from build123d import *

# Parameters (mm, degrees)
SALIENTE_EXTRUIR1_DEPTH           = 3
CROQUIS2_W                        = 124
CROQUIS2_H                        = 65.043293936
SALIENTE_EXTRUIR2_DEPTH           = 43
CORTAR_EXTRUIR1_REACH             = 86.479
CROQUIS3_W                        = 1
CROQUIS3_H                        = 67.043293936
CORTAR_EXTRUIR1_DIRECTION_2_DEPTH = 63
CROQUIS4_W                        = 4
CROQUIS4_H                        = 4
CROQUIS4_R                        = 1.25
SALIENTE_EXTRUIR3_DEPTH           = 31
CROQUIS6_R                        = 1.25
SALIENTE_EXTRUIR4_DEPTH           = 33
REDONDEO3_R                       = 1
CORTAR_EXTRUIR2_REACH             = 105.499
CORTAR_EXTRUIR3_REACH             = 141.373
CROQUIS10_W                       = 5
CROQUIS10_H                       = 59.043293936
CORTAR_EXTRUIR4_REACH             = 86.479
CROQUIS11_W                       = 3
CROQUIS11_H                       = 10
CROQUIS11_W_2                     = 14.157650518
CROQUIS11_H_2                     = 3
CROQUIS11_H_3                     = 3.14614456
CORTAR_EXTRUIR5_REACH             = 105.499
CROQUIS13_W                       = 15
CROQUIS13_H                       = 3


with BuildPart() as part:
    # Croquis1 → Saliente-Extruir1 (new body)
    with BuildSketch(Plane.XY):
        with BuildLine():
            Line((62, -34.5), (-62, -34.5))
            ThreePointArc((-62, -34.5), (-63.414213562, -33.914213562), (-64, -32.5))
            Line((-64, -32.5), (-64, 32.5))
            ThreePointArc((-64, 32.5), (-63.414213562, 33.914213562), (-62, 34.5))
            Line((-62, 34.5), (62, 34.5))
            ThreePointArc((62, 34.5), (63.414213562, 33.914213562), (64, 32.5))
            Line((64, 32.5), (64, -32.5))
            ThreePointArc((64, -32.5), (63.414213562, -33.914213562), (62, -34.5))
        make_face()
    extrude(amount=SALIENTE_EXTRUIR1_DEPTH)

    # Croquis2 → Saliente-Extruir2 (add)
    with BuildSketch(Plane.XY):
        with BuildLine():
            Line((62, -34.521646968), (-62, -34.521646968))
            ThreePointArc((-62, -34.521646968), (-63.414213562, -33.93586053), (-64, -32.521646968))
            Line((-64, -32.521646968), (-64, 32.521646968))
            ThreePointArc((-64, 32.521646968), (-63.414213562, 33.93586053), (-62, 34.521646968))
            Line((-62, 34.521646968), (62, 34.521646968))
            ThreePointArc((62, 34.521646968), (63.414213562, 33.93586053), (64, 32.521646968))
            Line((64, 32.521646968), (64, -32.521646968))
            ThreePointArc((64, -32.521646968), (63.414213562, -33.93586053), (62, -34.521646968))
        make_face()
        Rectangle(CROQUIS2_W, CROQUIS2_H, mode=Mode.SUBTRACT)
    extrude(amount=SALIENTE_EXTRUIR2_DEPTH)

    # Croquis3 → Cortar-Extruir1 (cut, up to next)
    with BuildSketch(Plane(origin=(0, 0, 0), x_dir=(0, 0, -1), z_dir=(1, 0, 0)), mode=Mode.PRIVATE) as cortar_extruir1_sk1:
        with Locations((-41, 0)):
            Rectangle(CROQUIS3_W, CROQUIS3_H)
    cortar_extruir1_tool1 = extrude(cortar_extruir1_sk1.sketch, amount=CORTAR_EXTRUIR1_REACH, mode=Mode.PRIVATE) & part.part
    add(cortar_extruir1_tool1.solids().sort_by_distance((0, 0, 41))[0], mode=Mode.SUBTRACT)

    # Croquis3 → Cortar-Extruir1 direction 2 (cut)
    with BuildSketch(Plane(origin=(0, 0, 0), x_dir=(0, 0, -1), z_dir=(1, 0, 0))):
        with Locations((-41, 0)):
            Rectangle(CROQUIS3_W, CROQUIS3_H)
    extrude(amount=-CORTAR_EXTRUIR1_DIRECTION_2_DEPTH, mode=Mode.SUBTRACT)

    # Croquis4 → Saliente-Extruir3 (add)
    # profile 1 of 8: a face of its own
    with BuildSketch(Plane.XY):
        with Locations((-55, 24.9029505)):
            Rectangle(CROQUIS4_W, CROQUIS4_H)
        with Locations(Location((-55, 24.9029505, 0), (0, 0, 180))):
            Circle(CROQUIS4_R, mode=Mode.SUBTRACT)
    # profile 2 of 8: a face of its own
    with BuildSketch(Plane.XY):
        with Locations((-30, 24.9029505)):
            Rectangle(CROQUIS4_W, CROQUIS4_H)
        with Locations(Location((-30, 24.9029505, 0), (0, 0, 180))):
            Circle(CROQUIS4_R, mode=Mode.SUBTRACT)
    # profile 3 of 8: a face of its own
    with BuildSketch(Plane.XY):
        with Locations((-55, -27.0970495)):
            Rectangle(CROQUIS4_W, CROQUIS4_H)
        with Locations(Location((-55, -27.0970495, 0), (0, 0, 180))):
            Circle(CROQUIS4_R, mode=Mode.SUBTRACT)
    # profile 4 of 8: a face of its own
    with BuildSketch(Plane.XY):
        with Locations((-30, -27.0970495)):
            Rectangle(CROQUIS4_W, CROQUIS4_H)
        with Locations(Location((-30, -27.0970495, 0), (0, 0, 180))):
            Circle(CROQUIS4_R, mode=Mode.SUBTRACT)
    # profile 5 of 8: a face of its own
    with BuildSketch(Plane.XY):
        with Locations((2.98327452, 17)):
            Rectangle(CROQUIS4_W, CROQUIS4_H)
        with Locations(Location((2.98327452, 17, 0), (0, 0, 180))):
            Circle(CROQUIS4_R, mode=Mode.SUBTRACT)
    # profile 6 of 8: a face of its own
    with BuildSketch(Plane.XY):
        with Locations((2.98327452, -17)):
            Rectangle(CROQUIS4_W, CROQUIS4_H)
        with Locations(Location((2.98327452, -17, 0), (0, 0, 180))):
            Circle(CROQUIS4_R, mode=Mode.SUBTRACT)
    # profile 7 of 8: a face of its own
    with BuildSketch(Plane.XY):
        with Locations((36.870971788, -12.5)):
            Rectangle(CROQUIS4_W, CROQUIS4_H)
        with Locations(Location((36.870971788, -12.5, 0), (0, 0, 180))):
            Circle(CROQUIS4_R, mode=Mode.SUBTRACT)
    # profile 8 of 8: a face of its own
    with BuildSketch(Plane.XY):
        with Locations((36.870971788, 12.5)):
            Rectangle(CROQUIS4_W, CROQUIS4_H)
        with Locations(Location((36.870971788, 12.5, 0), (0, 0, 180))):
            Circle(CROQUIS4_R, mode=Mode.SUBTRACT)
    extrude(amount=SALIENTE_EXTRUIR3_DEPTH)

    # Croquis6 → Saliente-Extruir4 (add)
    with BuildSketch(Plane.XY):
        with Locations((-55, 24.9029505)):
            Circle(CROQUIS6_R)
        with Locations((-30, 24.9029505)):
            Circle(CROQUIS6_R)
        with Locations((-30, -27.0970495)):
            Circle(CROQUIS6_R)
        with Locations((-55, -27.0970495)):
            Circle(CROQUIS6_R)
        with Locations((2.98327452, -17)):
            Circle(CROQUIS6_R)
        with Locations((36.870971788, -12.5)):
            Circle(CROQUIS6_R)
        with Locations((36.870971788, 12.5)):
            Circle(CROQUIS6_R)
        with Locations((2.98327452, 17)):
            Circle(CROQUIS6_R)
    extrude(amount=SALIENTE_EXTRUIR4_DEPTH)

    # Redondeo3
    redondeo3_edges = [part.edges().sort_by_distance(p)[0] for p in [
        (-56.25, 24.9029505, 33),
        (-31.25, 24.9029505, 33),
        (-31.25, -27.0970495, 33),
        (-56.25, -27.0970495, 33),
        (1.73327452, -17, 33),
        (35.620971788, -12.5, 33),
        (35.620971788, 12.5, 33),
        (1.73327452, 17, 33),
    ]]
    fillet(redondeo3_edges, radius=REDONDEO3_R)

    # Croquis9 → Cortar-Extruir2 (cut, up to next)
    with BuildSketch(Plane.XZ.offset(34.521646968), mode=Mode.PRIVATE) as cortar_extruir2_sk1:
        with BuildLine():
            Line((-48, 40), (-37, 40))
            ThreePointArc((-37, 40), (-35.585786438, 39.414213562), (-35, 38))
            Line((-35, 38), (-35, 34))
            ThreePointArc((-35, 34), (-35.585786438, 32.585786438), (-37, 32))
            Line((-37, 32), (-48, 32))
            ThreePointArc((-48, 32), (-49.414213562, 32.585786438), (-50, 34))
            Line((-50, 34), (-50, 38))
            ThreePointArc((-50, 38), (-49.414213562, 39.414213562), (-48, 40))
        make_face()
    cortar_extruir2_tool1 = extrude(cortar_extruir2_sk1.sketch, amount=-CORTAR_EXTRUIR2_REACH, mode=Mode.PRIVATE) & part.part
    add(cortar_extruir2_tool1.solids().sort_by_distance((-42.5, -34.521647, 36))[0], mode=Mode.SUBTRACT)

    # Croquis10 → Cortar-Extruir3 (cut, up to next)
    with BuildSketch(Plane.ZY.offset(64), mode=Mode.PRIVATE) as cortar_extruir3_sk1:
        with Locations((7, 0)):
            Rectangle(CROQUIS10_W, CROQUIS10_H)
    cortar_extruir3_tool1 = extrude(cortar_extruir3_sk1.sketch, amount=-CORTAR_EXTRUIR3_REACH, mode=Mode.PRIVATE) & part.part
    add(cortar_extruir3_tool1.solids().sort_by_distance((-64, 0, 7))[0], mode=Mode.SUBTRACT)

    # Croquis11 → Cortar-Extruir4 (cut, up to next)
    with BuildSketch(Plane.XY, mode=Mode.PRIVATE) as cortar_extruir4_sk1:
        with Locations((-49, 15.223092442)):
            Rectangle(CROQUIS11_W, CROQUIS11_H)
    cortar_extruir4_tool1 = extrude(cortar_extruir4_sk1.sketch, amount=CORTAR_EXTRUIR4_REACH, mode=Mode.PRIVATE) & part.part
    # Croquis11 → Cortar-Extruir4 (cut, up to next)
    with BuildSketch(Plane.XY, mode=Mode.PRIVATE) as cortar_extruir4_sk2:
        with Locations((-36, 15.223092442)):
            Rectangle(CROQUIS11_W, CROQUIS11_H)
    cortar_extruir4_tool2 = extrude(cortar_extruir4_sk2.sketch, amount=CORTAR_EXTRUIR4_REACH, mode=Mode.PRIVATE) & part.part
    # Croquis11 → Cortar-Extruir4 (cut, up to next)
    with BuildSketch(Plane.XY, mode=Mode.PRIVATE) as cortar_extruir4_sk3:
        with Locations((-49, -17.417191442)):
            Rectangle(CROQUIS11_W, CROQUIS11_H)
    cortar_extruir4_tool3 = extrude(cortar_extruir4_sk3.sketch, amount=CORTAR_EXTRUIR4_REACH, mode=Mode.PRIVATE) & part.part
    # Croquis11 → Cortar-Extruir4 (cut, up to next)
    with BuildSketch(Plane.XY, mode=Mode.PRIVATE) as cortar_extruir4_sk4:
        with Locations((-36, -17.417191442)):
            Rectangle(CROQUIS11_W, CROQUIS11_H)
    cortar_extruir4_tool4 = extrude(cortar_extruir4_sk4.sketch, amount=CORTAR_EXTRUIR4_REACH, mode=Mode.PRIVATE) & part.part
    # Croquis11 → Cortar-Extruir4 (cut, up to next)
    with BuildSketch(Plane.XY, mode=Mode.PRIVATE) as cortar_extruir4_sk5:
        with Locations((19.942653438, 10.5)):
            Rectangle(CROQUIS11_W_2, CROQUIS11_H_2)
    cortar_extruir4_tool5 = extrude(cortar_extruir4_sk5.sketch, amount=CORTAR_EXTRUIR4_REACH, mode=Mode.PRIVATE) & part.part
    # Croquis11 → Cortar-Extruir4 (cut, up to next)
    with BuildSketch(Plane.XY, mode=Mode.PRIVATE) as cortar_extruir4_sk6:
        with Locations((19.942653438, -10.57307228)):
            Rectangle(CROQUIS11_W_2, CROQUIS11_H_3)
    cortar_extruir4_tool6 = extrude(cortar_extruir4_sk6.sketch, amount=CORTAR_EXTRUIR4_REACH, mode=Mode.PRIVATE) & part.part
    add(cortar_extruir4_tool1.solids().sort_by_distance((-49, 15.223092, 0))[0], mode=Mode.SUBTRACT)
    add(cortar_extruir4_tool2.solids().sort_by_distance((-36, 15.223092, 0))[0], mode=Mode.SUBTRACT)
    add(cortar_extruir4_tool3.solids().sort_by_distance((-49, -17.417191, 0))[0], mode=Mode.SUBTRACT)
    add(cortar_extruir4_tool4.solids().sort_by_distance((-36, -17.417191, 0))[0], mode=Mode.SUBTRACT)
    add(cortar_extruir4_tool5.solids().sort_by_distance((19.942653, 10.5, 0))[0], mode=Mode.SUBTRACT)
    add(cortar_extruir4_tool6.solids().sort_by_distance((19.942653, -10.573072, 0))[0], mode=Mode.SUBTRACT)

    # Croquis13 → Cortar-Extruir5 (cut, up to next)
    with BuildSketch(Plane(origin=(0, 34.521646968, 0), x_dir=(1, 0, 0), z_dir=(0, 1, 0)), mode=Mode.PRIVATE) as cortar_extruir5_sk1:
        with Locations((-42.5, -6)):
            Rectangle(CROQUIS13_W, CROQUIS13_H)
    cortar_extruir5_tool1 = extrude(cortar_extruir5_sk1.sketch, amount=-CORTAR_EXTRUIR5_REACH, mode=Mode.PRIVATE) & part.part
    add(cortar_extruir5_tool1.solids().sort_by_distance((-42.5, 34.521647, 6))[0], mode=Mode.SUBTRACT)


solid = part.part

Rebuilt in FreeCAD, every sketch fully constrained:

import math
import FreeCAD as App
import Part
import Sketcher


def edges_at(feature, points):
    """Names of the edges that pass closest to the given points."""
    edges = feature.Shape.Edges
    near = lambda p: min(range(len(edges)), key=lambda i: edges[i].distToShape(Part.Vertex(*p))[0])
    return sorted({f"Edge{near(p) + 1}" for p in points})

doc = App.newDocument("Part")
body = doc.addObject("PartDesign::Body", "Body")

sketch1 = doc.addObject("Sketcher::SketchObject", "Sketch")
body.addObject(sketch1)
sketch1.AttachmentSupport = (doc.XY_Plane, [""])
sketch1.MapMode = "FlatFace"
sketch1.addGeometry(Part.LineSegment(App.Vector(-62, -34.5, 0), App.Vector(62, -34.5, 0)), False)
sketch1.addGeometry(Part.ArcOfCircle(Part.Circle(App.Vector(62, -32.5, 0), App.Vector(0, 0, 1), 2), math.radians(-90), math.radians(0)), False)
sketch1.addGeometry(Part.LineSegment(App.Vector(64, -32.5, 0), App.Vector(64, 32.5, 0)), False)
sketch1.addGeometry(Part.ArcOfCircle(Part.Circle(App.Vector(62, 32.5, 0), App.Vector(0, 0, 1), 2), math.radians(0), math.radians(90)), False)
sketch1.addGeometry(Part.LineSegment(App.Vector(62, 34.5, 0), App.Vector(-62, 34.5, 0)), False)
sketch1.addGeometry(Part.ArcOfCircle(Part.Circle(App.Vector(-62, 32.5, 0), App.Vector(0, 0, 1), 2), math.radians(90), math.radians(180)), False)
sketch1.addGeometry(Part.LineSegment(App.Vector(-64, 32.5, 0), App.Vector(-64, -32.5, 0)), False)
sketch1.addGeometry(Part.ArcOfCircle(Part.Circle(App.Vector(-62, -32.5, 0), App.Vector(0, 0, 1), 2), math.radians(-180), math.radians(-90)), False)
sketch1.addConstraint(Sketcher.Constraint("Tangent", 0, 2, 1, 1))
sketch1.addConstraint(Sketcher.Constraint("Tangent", 1, 2, 2, 1))
sketch1.addConstraint(Sketcher.Constraint("Tangent", 2, 2, 3, 1))
sketch1.addConstraint(Sketcher.Constraint("Tangent", 3, 2, 4, 1))
sketch1.addConstraint(Sketcher.Constraint("Tangent", 4, 2, 5, 1))
sketch1.addConstraint(Sketcher.Constraint("Tangent", 5, 2, 6, 1))
sketch1.addConstraint(Sketcher.Constraint("Tangent", 6, 2, 7, 1))
sketch1.addConstraint(Sketcher.Constraint("Tangent", 7, 2, 0, 1))
sketch1.addConstraint(Sketcher.Constraint("Horizontal", 0))
sketch1.addConstraint(Sketcher.Constraint("Vertical", 2))
sketch1.addConstraint(Sketcher.Constraint("Horizontal", 4))
sketch1.addConstraint(Sketcher.Constraint("Vertical", 6))
sketch1.addConstraint(Sketcher.Constraint("Equal", 1, 3))
sketch1.addConstraint(Sketcher.Constraint("Equal", 3, 5))
sketch1.addConstraint(Sketcher.Constraint("Equal", 5, 7))
sketch1.addConstraint(Sketcher.Constraint("Symmetric", 1, 3, 5, 3, -1, 1))
sketch1.addConstraint(Sketcher.Constraint("Radius", 1, 2.0))
sketch1.addConstraint(Sketcher.Constraint("DistanceX", 0, 1, 0, 2, 124.0))
sketch1.addConstraint(Sketcher.Constraint("DistanceY", 2, 1, 2, 2, 65.0))
pad1 = doc.addObject("PartDesign::Pad", "Pad")
body.addObject(pad1)
pad1.Profile = sketch1
pad1.Length = 3

sketch2 = doc.addObject("Sketcher::SketchObject", "Sketch001")
body.addObject(sketch2)
sketch2.AttachmentSupport = (doc.XY_Plane, [""])
sketch2.MapMode = "FlatFace"
sketch2.addGeometry(Part.LineSegment(App.Vector(-62, -34.521647, 0), App.Vector(62, -34.521647, 0)), False)
sketch2.addGeometry(Part.ArcOfCircle(Part.Circle(App.Vector(62, -32.521647, 0), App.Vector(0, 0, 1), 2), math.radians(-90), math.radians(0)), False)
sketch2.addGeometry(Part.LineSegment(App.Vector(64, -32.521647, 0), App.Vector(64, 32.521647, 0)), False)
sketch2.addGeometry(Part.ArcOfCircle(Part.Circle(App.Vector(62, 32.521647, 0), App.Vector(0, 0, 1), 2), math.radians(0), math.radians(90)), False)
sketch2.addGeometry(Part.LineSegment(App.Vector(62, 34.521647, 0), App.Vector(-62, 34.521647, 0)), False)
sketch2.addGeometry(Part.ArcOfCircle(Part.Circle(App.Vector(-62, 32.521647, 0), App.Vector(0, 0, 1), 2), math.radians(90), math.radians(180)), False)
sketch2.addGeometry(Part.LineSegment(App.Vector(-64, 32.521647, 0), App.Vector(-64, -32.521647, 0)), False)
sketch2.addGeometry(Part.ArcOfCircle(Part.Circle(App.Vector(-62, -32.521647, 0), App.Vector(0, 0, 1), 2), math.radians(-180), math.radians(-90)), False)
sketch2.addGeometry(Part.LineSegment(App.Vector(-62, -32.521647, 0), App.Vector(-62, 32.521647, 0)), False)
sketch2.addGeometry(Part.LineSegment(App.Vector(-62, 32.521647, 0), App.Vector(62, 32.521647, 0)), False)
sketch2.addGeometry(Part.LineSegment(App.Vector(62, 32.521647, 0), App.Vector(62, -32.521647, 0)), False)
sketch2.addGeometry(Part.LineSegment(App.Vector(62, -32.521647, 0), App.Vector(-62, -32.521647, 0)), False)
sketch2.addConstraint(Sketcher.Constraint("Tangent", 0, 2, 1, 1))
sketch2.addConstraint(Sketcher.Constraint("Tangent", 1, 2, 2, 1))
sketch2.addConstraint(Sketcher.Constraint("Tangent", 2, 2, 3, 1))
sketch2.addConstraint(Sketcher.Constraint("Tangent", 3, 2, 4, 1))
sketch2.addConstraint(Sketcher.Constraint("Tangent", 4, 2, 5, 1))
sketch2.addConstraint(Sketcher.Constraint("Tangent", 5, 2, 6, 1))
sketch2.addConstraint(Sketcher.Constraint("Tangent", 6, 2, 7, 1))
sketch2.addConstraint(Sketcher.Constraint("Tangent", 7, 2, 0, 1))
sketch2.addConstraint(Sketcher.Constraint("Coincident", 8, 2, 9, 1))
sketch2.addConstraint(Sketcher.Constraint("Coincident", 9, 2, 10, 1))
sketch2.addConstraint(Sketcher.Constraint("Coincident", 10, 2, 11, 1))
sketch2.addConstraint(Sketcher.Constraint("Coincident", 11, 2, 8, 1))
sketch2.addConstraint(Sketcher.Constraint("Horizontal", 0))
sketch2.addConstraint(Sketcher.Constraint("Vertical", 2))
sketch2.addConstraint(Sketcher.Constraint("Horizontal", 4))
sketch2.addConstraint(Sketcher.Constraint("Vertical", 6))
sketch2.addConstraint(Sketcher.Constraint("Vertical", 8))
sketch2.addConstraint(Sketcher.Constraint("Horizontal", 9))
sketch2.addConstraint(Sketcher.Constraint("Vertical", 10))
sketch2.addConstraint(Sketcher.Constraint("Horizontal", 11))
sketch2.addConstraint(Sketcher.Constraint("Coincident", 8, 2, 5, 3))
sketch2.addConstraint(Sketcher.Constraint("Coincident", 9, 2, 3, 3))
sketch2.addConstraint(Sketcher.Constraint("Coincident", 10, 2, 1, 3))
sketch2.addConstraint(Sketcher.Constraint("Equal", 5, 7))
sketch2.addConstraint(Sketcher.Constraint("Symmetric", 1, 3, 5, 3, -1, 1))
sketch2.addConstraint(Sketcher.Constraint("Radius", 1, 2.0))
sketch2.addConstraint(Sketcher.Constraint("DistanceX", 0, 1, 0, 2, 124.0))
sketch2.addConstraint(Sketcher.Constraint("DistanceY", 2, 1, 2, 2, 65.043294))
pad2 = doc.addObject("PartDesign::Pad", "Pad001")
body.addObject(pad2)
pad2.Profile = sketch2
pad2.Length = 43

sketch3 = doc.addObject("Sketcher::SketchObject", "Sketch002")
body.addObject(sketch3)
sketch3.AttachmentSupport = (doc.YZ_Plane, [""])
sketch3.MapMode = "FlatFace"
sketch3.addGeometry(Part.LineSegment(App.Vector(33.521647, 41.5, 0), App.Vector(-33.521647, 41.5, 0)), False)
sketch3.addGeometry(Part.LineSegment(App.Vector(-33.521647, 41.5, 0), App.Vector(-33.521647, 40.5, 0)), False)
sketch3.addGeometry(Part.LineSegment(App.Vector(-33.521647, 40.5, 0), App.Vector(33.521647, 40.5, 0)), False)
sketch3.addGeometry(Part.LineSegment(App.Vector(33.521647, 40.5, 0), App.Vector(33.521647, 41.5, 0)), False)
sketch3.addConstraint(Sketcher.Constraint("Coincident", 0, 2, 1, 1))
sketch3.addConstraint(Sketcher.Constraint("Coincident", 1, 2, 2, 1))
sketch3.addConstraint(Sketcher.Constraint("Coincident", 2, 2, 3, 1))
sketch3.addConstraint(Sketcher.Constraint("Coincident", 3, 2, 0, 1))
sketch3.addConstraint(Sketcher.Constraint("Horizontal", 0))
sketch3.addConstraint(Sketcher.Constraint("Vertical", 1))
sketch3.addConstraint(Sketcher.Constraint("Horizontal", 2))
sketch3.addConstraint(Sketcher.Constraint("Vertical", 3))
sketch3.addConstraint(Sketcher.Constraint("DistanceY", 1, 2, 1, 1, 1.0))
sketch3.addConstraint(Sketcher.Constraint("DistanceY", -1, 1, 0, 2, 41.5))
sketch3.addConstraint(Sketcher.Constraint("DistanceX", 0, 2, 0, 1, 67.043294))
sketch3.addConstraint(Sketcher.Constraint("DistanceX", 0, 2, -1, 1, 33.521647))
pocket1 = doc.addObject("PartDesign::Pocket", "Pocket")
body.addObject(pocket1)
pocket1.Profile = sketch3
pocket1.Length = 64
pocket1.Reversed = True

sketch4 = doc.addObject("Sketcher::SketchObject", "Sketch003")
body.addObject(sketch4)
sketch4.AttachmentSupport = (doc.YZ_Plane, [""])
sketch4.MapMode = "FlatFace"
sketch4.addGeometry(Part.LineSegment(App.Vector(33.521647, 41.5, 0), App.Vector(-33.521647, 41.5, 0)), False)
sketch4.addGeometry(Part.LineSegment(App.Vector(-33.521647, 41.5, 0), App.Vector(-33.521647, 40.5, 0)), False)
sketch4.addGeometry(Part.LineSegment(App.Vector(-33.521647, 40.5, 0), App.Vector(33.521647, 40.5, 0)), False)
sketch4.addGeometry(Part.LineSegment(App.Vector(33.521647, 40.5, 0), App.Vector(33.521647, 41.5, 0)), False)
sketch4.addConstraint(Sketcher.Constraint("Coincident", 0, 2, 1, 1))
sketch4.addConstraint(Sketcher.Constraint("Coincident", 1, 2, 2, 1))
sketch4.addConstraint(Sketcher.Constraint("Coincident", 2, 2, 3, 1))
sketch4.addConstraint(Sketcher.Constraint("Coincident", 3, 2, 0, 1))
sketch4.addConstraint(Sketcher.Constraint("Horizontal", 0))
sketch4.addConstraint(Sketcher.Constraint("Vertical", 1))
sketch4.addConstraint(Sketcher.Constraint("Horizontal", 2))
sketch4.addConstraint(Sketcher.Constraint("Vertical", 3))
sketch4.addConstraint(Sketcher.Constraint("DistanceY", 1, 2, 1, 1, 1.0))
sketch4.addConstraint(Sketcher.Constraint("DistanceY", -1, 1, 0, 2, 41.5))
sketch4.addConstraint(Sketcher.Constraint("DistanceX", 0, 2, 0, 1, 67.043294))
sketch4.addConstraint(Sketcher.Constraint("DistanceX", 0, 2, -1, 1, 33.521647))
pocket2 = doc.addObject("PartDesign::Pocket", "Pocket001")
body.addObject(pocket2)
pocket2.Profile = sketch4
pocket2.Length = 63

sketch5 = doc.addObject("Sketcher::SketchObject", "Sketch004")
body.addObject(sketch5)
sketch5.AttachmentSupport = (doc.XY_Plane, [""])
sketch5.MapMode = "FlatFace"
sketch5.addGeometry(Part.LineSegment(App.Vector(-57, 26.90295, 0), App.Vector(-57, 22.90295, 0)), False)
sketch5.addGeometry(Part.LineSegment(App.Vector(-57, 22.90295, 0), App.Vector(-53, 22.90295, 0)), False)
sketch5.addGeometry(Part.LineSegment(App.Vector(-53, 22.90295, 0), App.Vector(-53, 26.90295, 0)), False)
sketch5.addGeometry(Part.LineSegment(App.Vector(-53, 26.90295, 0), App.Vector(-57, 26.90295, 0)), False)
sketch5.addGeometry(Part.Circle(App.Vector(-55, 24.90295, 0), App.Vector(0, 0, 1), 1.25), False)
sketch5.addGeometry(Part.LineSegment(App.Vector(-32, 26.90295, 0), App.Vector(-32, 22.90295, 0)), False)
sketch5.addGeometry(Part.LineSegment(App.Vector(-32, 22.90295, 0), App.Vector(-28, 22.90295, 0)), False)
sketch5.addGeometry(Part.LineSegment(App.Vector(-28, 22.90295, 0), App.Vector(-28, 26.90295, 0)), False)
sketch5.addGeometry(Part.LineSegment(App.Vector(-28, 26.90295, 0), App.Vector(-32, 26.90295, 0)), False)
sketch5.addGeometry(Part.Circle(App.Vector(-30, 24.90295, 0), App.Vector(0, 0, 1), 1.25), False)
sketch5.addGeometry(Part.LineSegment(App.Vector(-57, -25.09705, 0), App.Vector(-57, -29.09705, 0)), False)
sketch5.addGeometry(Part.LineSegment(App.Vector(-57, -29.09705, 0), App.Vector(-53, -29.09705, 0)), False)
sketch5.addGeometry(Part.LineSegment(App.Vector(-53, -29.09705, 0), App.Vector(-53, -25.09705, 0)), False)
sketch5.addGeometry(Part.LineSegment(App.Vector(-53, -25.09705, 0), App.Vector(-57, -25.09705, 0)), False)
sketch5.addGeometry(Part.Circle(App.Vector(-55, -27.09705, 0), App.Vector(0, 0, 1), 1.25), False)
sketch5.addGeometry(Part.LineSegment(App.Vector(-32, -25.09705, 0), App.Vector(-32, -29.09705, 0)), False)
sketch5.addGeometry(Part.LineSegment(App.Vector(-32, -29.09705, 0), App.Vector(-28, -29.09705, 0)), False)
sketch5.addGeometry(Part.LineSegment(App.Vector(-28, -29.09705, 0), App.Vector(-28, -25.09705, 0)), False)
sketch5.addGeometry(Part.LineSegment(App.Vector(-28, -25.09705, 0), App.Vector(-32, -25.09705, 0)), False)
sketch5.addGeometry(Part.Circle(App.Vector(-30, -27.09705, 0), App.Vector(0, 0, 1), 1.25), False)
sketch5.addGeometry(Part.LineSegment(App.Vector(0.983275, 19, 0), App.Vector(0.983275, 15, 0)), False)
sketch5.addGeometry(Part.LineSegment(App.Vector(0.983275, 15, 0), App.Vector(4.983275, 15, 0)), False)
sketch5.addGeometry(Part.LineSegment(App.Vector(4.983275, 15, 0), App.Vector(4.983275, 19, 0)), False)
sketch5.addGeometry(Part.LineSegment(App.Vector(4.983275, 19, 0), App.Vector(0.983275, 19, 0)), False)
sketch5.addGeometry(Part.Circle(App.Vector(2.983275, 17, 0), App.Vector(0, 0, 1), 1.25), False)
sketch5.addGeometry(Part.LineSegment(App.Vector(0.983275, -15, 0), App.Vector(0.983275, -19, 0)), False)
sketch5.addGeometry(Part.LineSegment(App.Vector(0.983275, -19, 0), App.Vector(4.983275, -19, 0)), False)
sketch5.addGeometry(Part.LineSegment(App.Vector(4.983275, -19, 0), App.Vector(4.983275, -15, 0)), False)
sketch5.addGeometry(Part.LineSegment(App.Vector(4.983275, -15, 0), App.Vector(0.983275, -15, 0)), False)
sketch5.addGeometry(Part.Circle(App.Vector(2.983275, -17, 0), App.Vector(0, 0, 1), 1.25), False)
sketch5.addGeometry(Part.LineSegment(App.Vector(34.870972, -10.5, 0), App.Vector(34.870972, -14.5, 0)), False)
sketch5.addGeometry(Part.LineSegment(App.Vector(34.870972, -14.5, 0), App.Vector(38.870972, -14.5, 0)), False)
sketch5.addGeometry(Part.LineSegment(App.Vector(38.870972, -14.5, 0), App.Vector(38.870972, -10.5, 0)), False)
sketch5.addGeometry(Part.LineSegment(App.Vector(38.870972, -10.5, 0), App.Vector(34.870972, -10.5, 0)), False)
sketch5.addGeometry(Part.Circle(App.Vector(36.870972, -12.5, 0), App.Vector(0, 0, 1), 1.25), False)
sketch5.addGeometry(Part.LineSegment(App.Vector(34.870972, 14.5, 0), App.Vector(34.870972, 10.5, 0)), False)
sketch5.addGeometry(Part.LineSegment(App.Vector(34.870972, 10.5, 0), App.Vector(38.870972, 10.5, 0)), False)
sketch5.addGeometry(Part.LineSegment(App.Vector(38.870972, 10.5, 0), App.Vector(38.870972, 14.5, 0)), False)
sketch5.addGeometry(Part.LineSegment(App.Vector(38.870972, 14.5, 0), App.Vector(34.870972, 14.5, 0)), False)
sketch5.addGeometry(Part.Circle(App.Vector(36.870972, 12.5, 0), App.Vector(0, 0, 1), 1.25), False)
sketch5.addConstraint(Sketcher.Constraint("Coincident", 0, 2, 1, 1))
sketch5.addConstraint(Sketcher.Constraint("Coincident", 1, 2, 2, 1))
sketch5.addConstraint(Sketcher.Constraint("Coincident", 2, 2, 3, 1))
sketch5.addConstraint(Sketcher.Constraint("Coincident", 3, 2, 0, 1))
sketch5.addConstraint(Sketcher.Constraint("Coincident", 5, 2, 6, 1))
sketch5.addConstraint(Sketcher.Constraint("Coincident", 6, 2, 7, 1))
sketch5.addConstraint(Sketcher.Constraint("Coincident", 7, 2, 8, 1))
sketch5.addConstraint(Sketcher.Constraint("Coincident", 8, 2, 5, 1))
sketch5.addConstraint(Sketcher.Constraint("Coincident", 10, 2, 11, 1))
sketch5.addConstraint(Sketcher.Constraint("Coincident", 11, 2, 12, 1))
sketch5.addConstraint(Sketcher.Constraint("Coincident", 12, 2, 13, 1))
sketch5.addConstraint(Sketcher.Constraint("Coincident", 13, 2, 10, 1))
sketch5.addConstraint(Sketcher.Constraint("Coincident", 15, 2, 16, 1))
sketch5.addConstraint(Sketcher.Constraint("Coincident", 16, 2, 17, 1))
sketch5.addConstraint(Sketcher.Constraint("Coincident", 17, 2, 18, 1))
sketch5.addConstraint(Sketcher.Constraint("Coincident", 18, 2, 15, 1))
sketch5.addConstraint(Sketcher.Constraint("Coincident", 20, 2, 21, 1))
sketch5.addConstraint(Sketcher.Constraint("Coincident", 21, 2, 22, 1))
sketch5.addConstraint(Sketcher.Constraint("Coincident", 22, 2, 23, 1))
sketch5.addConstraint(Sketcher.Constraint("Coincident", 23, 2, 20, 1))
sketch5.addConstraint(Sketcher.Constraint("Coincident", 25, 2, 26, 1))
sketch5.addConstraint(Sketcher.Constraint("Coincident", 26, 2, 27, 1))
sketch5.addConstraint(Sketcher.Constraint("Coincident", 27, 2, 28, 1))
sketch5.addConstraint(Sketcher.Constraint("Coincident", 28, 2, 25, 1))
sketch5.addConstraint(Sketcher.Constraint("Coincident", 30, 2, 31, 1))
sketch5.addConstraint(Sketcher.Constraint("Coincident", 31, 2, 32, 1))
sketch5.addConstraint(Sketcher.Constraint("Coincident", 32, 2, 33, 1))
sketch5.addConstraint(Sketcher.Constraint("Coincident", 33, 2, 30, 1))
sketch5.addConstraint(Sketcher.Constraint("Coincident", 35, 2, 36, 1))
sketch5.addConstraint(Sketcher.Constraint("Coincident", 36, 2, 37, 1))
sketch5.addConstraint(Sketcher.Constraint("Coincident", 37, 2, 38, 1))
sketch5.addConstraint(Sketcher.Constraint("Coincident", 38, 2, 35, 1))
sketch5.addConstraint(Sketcher.Constraint("Vertical", 0))
sketch5.addConstraint(Sketcher.Constraint("Horizontal", 1))
sketch5.addConstraint(Sketcher.Constraint("Vertical", 2))
sketch5.addConstraint(Sketcher.Constraint("Horizontal", 3))
sketch5.addConstraint(Sketcher.Constraint("Vertical", 5))
sketch5.addConstraint(Sketcher.Constraint("Horizontal", 6))
sketch5.addConstraint(Sketcher.Constraint("Vertical", 7))
sketch5.addConstraint(Sketcher.Constraint("Horizontal", 8))
sketch5.addConstraint(Sketcher.Constraint("Vertical", 10))
sketch5.addConstraint(Sketcher.Constraint("Horizontal", 11))
sketch5.addConstraint(Sketcher.Constraint("Vertical", 12))
sketch5.addConstraint(Sketcher.Constraint("Horizontal", 13))
sketch5.addConstraint(Sketcher.Constraint("Vertical", 15))
sketch5.addConstraint(Sketcher.Constraint("Horizontal", 16))
sketch5.addConstraint(Sketcher.Constraint("Vertical", 17))
sketch5.addConstraint(Sketcher.Constraint("Horizontal", 18))
sketch5.addConstraint(Sketcher.Constraint("Vertical", 20))
sketch5.addConstraint(Sketcher.Constraint("Horizontal", 21))
sketch5.addConstraint(Sketcher.Constraint("Vertical", 22))
sketch5.addConstraint(Sketcher.Constraint("Horizontal", 23))
sketch5.addConstraint(Sketcher.Constraint("Vertical", 25))
sketch5.addConstraint(Sketcher.Constraint("Horizontal", 26))
sketch5.addConstraint(Sketcher.Constraint("Vertical", 27))
sketch5.addConstraint(Sketcher.Constraint("Horizontal", 28))
sketch5.addConstraint(Sketcher.Constraint("Vertical", 30))
sketch5.addConstraint(Sketcher.Constraint("Horizontal", 31))
sketch5.addConstraint(Sketcher.Constraint("Vertical", 32))
sketch5.addConstraint(Sketcher.Constraint("Horizontal", 33))
sketch5.addConstraint(Sketcher.Constraint("Vertical", 35))
sketch5.addConstraint(Sketcher.Constraint("Horizontal", 36))
sketch5.addConstraint(Sketcher.Constraint("Vertical", 37))
sketch5.addConstraint(Sketcher.Constraint("Horizontal", 38))
sketch5.addConstraint(Sketcher.Constraint("Equal", 4, 9))
sketch5.addConstraint(Sketcher.Constraint("Equal", 9, 14))
sketch5.addConstraint(Sketcher.Constraint("Equal", 14, 19))
sketch5.addConstraint(Sketcher.Constraint("Equal", 19, 24))
sketch5.addConstraint(Sketcher.Constraint("Equal", 24, 29))
sketch5.addConstraint(Sketcher.Constraint("Equal", 29, 34))
sketch5.addConstraint(Sketcher.Constraint("Equal", 34, 39))
sketch5.addConstraint(Sketcher.Constraint("Symmetric", 24, 3, 29, 3, -1))
sketch5.addConstraint(Sketcher.Constraint("Symmetric", 34, 3, 39, 3, -1))
sketch5.addConstraint(Sketcher.Constraint("Symmetric", 23, 2, 25, 2, -1))
sketch5.addConstraint(Sketcher.Constraint("Symmetric", 21, 2, 27, 2, -1))
sketch5.addConstraint(Sketcher.Constraint("Symmetric", 33, 2, 35, 2, -1))
sketch5.addConstraint(Sketcher.Constraint("Symmetric", 31, 2, 37, 2, -1))
sketch5.addConstraint(Sketcher.Constraint("Horizontal", 4, 3, 9, 3))
sketch5.addConstraint(Sketcher.Constraint("Horizontal", 14, 3, 19, 3))
sketch5.addConstraint(Sketcher.Constraint("Horizontal", 1, 2, 5, 2))
sketch5.addConstraint(Sketcher.Constraint("Horizontal", 3, 2, 7, 2))
sketch5.addConstraint(Sketcher.Constraint("Horizontal", 11, 2, 15, 2))
sketch5.addConstraint(Sketcher.Constraint("Horizontal", 13, 2, 17, 2))
sketch5.addConstraint(Sketcher.Constraint("Vertical", 4, 3, 14, 3))
sketch5.addConstraint(Sketcher.Constraint("Vertical", 9, 3, 19, 3))
sketch5.addConstraint(Sketcher.Constraint("Vertical", 3, 2, 10, 2))
sketch5.addConstraint(Sketcher.Constraint("Vertical", 2, 2, 11, 2))
sketch5.addConstraint(Sketcher.Constraint("Vertical", 8, 2, 15, 2))
sketch5.addConstraint(Sketcher.Constraint("Vertical", 7, 2, 16, 2))
sketch5.addConstraint(Sketcher.Constraint("Equal", 3, 6))
sketch5.addConstraint(Sketcher.Constraint("Equal", 18, 21))
sketch5.addConstraint(Sketcher.Constraint("Equal", 28, 31))
sketch5.addConstraint(Sketcher.Constraint("Equal", 38, 0))
sketch5.addConstraint(Sketcher.Constraint("Equal", 7, 10))
sketch5.addConstraint(Sketcher.Constraint("Equal", 17, 20))
sketch5.addConstraint(Sketcher.Constraint("Equal", 27, 30))
sketch5.addConstraint(Sketcher.Constraint("Diameter", 4, 2.5))
sketch5.addConstraint(Sketcher.Constraint("DistanceX", 1, 1, 1, 2, 4.0))
sketch5.addConstraint(Sketcher.Constraint("DistanceX", 4, 3, -1, 1, 55.0))
sketch5.addConstraint(Sketcher.Constraint("DistanceX", 9, 3, -1, 1, 30.0))
sketch5.addConstraint(Sketcher.Constraint("DistanceY", -1, 1, 24, 3, 17.0))
sketch5.addConstraint(Sketcher.Constraint("DistanceX", 0, 2, -1, 1, 57.0))
sketch5.addConstraint(Sketcher.Constraint("DistanceX", 5, 2, -1, 1, 32.0))
sketch5.addConstraint(Sketcher.Constraint("DistanceY", -1, 1, 20, 2, 15.0))
sketch5.addConstraint(Sketcher.Constraint("DistanceY", 14, 3, 4, 3, 52.0))
sketch5.addConstraint(Sketcher.Constraint("DistanceY", 34, 3, 39, 3, 25.0))
sketch5.addConstraint(Sketcher.Constraint("DistanceY", 0, 2, 4, 3, 2.0))
sketch5.addConstraint(Sketcher.Constraint("DistanceY", 10, 2, 14, 3, 2.0))
sketch5.addConstraint(Sketcher.Constraint("DistanceX", 20, 2, 24, 3, 2.0))
sketch5.addConstraint(Sketcher.Constraint("DistanceX", 30, 2, 34, 3, 2.0))
sketch5.addConstraint(Sketcher.Constraint("DistanceY", 30, 2, 34, 3, 2.0))
sketch5.addConstraint(Sketcher.Constraint("DistanceY", -1, 1, 4, 3, 24.90295))
sketch5.addConstraint(Sketcher.Constraint("DistanceX", -1, 1, 34, 3, 36.870972))
sketch5.addConstraint(Sketcher.Constraint("DistanceX", -1, 1, 24, 3, 2.983275))
pad3 = doc.addObject("PartDesign::Pad", "Pad002")
body.addObject(pad3)
pad3.Profile = sketch5
pad3.Length = 31

sketch6 = doc.addObject("Sketcher::SketchObject", "Sketch005")
body.addObject(sketch6)
sketch6.AttachmentSupport = (doc.XY_Plane, [""])
sketch6.MapMode = "FlatFace"
sketch6.addGeometry(Part.Circle(App.Vector(-55, 24.90295, 0), App.Vector(0, 0, 1), 1.25), False)
sketch6.addGeometry(Part.Circle(App.Vector(-30, 24.90295, 0), App.Vector(0, 0, 1), 1.25), False)
sketch6.addGeometry(Part.Circle(App.Vector(-30, -27.09705, 0), App.Vector(0, 0, 1), 1.25), False)
sketch6.addGeometry(Part.Circle(App.Vector(-55, -27.09705, 0), App.Vector(0, 0, 1), 1.25), False)
sketch6.addGeometry(Part.Circle(App.Vector(2.983275, -17, 0), App.Vector(0, 0, 1), 1.25), False)
sketch6.addGeometry(Part.Circle(App.Vector(36.870972, -12.5, 0), App.Vector(0, 0, 1), 1.25), False)
sketch6.addGeometry(Part.Circle(App.Vector(36.870972, 12.5, 0), App.Vector(0, 0, 1), 1.25), False)
sketch6.addGeometry(Part.Circle(App.Vector(2.983275, 17, 0), App.Vector(0, 0, 1), 1.25), False)
sketch6.addConstraint(Sketcher.Constraint("Equal", 0, 1))
sketch6.addConstraint(Sketcher.Constraint("Equal", 1, 2))
sketch6.addConstraint(Sketcher.Constraint("Equal", 2, 3))
sketch6.addConstraint(Sketcher.Constraint("Equal", 3, 4))
sketch6.addConstraint(Sketcher.Constraint("Equal", 4, 5))
sketch6.addConstraint(Sketcher.Constraint("Equal", 5, 6))
sketch6.addConstraint(Sketcher.Constraint("Equal", 6, 7))
sketch6.addConstraint(Sketcher.Constraint("Symmetric", 5, 3, 6, 3, -1))
sketch6.addConstraint(Sketcher.Constraint("Symmetric", 4, 3, 7, 3, -1))
sketch6.addConstraint(Sketcher.Constraint("Horizontal", 0, 3, 1, 3))
sketch6.addConstraint(Sketcher.Constraint("Horizontal", 2, 3, 3, 3))
sketch6.addConstraint(Sketcher.Constraint("Vertical", 1, 3, 2, 3))
sketch6.addConstraint(Sketcher.Constraint("Vertical", 0, 3, 3, 3))
sketch6.addConstraint(Sketcher.Constraint("Diameter", 0, 2.5))
sketch6.addConstraint(Sketcher.Constraint("DistanceX", 0, 3, -1, 1, 55.0))
sketch6.addConstraint(Sketcher.Constraint("DistanceX", 1, 3, -1, 1, 30.0))
sketch6.addConstraint(Sketcher.Constraint("DistanceY", 4, 3, -1, 1, 17.0))
sketch6.addConstraint(Sketcher.Constraint("DistanceY", 2, 3, 1, 3, 52.0))
sketch6.addConstraint(Sketcher.Constraint("DistanceY", 5, 3, 6, 3, 25.0))
sketch6.addConstraint(Sketcher.Constraint("DistanceY", -1, 1, 0, 3, 24.90295))
sketch6.addConstraint(Sketcher.Constraint("DistanceX", -1, 1, 5, 3, 36.870972))
sketch6.addConstraint(Sketcher.Constraint("DistanceX", -1, 1, 4, 3, 2.983275))
pad4 = doc.addObject("PartDesign::Pad", "Pad003")
body.addObject(pad4)
pad4.Profile = sketch6
pad4.Length = 33
doc.recompute()

fillet = doc.addObject("PartDesign::Fillet", "Fillet")
body.addObject(fillet)
fillet.Base = (pad4, edges_at(pad4, [
    (-56.25, 24.903, 33),
    (-31.25, 24.903, 33),
    (-31.25, -27.097, 33),
    (-56.25, -27.097, 33),
    (1.733, -17, 33),
    (35.621, -12.5, 33),
    (35.621, 12.5, 33),
    (1.733, 17, 33),
]))
fillet.Radius = 1

sketch7 = doc.addObject("Sketcher::SketchObject", "Sketch006")
body.addObject(sketch7)
sketch7.AttachmentSupport = (doc.XZ_Plane, [""])
sketch7.MapMode = "FlatFace"
sketch7.AttachmentOffset = App.Placement(App.Vector(0, 0, 34.521647), App.Rotation())
sketch7.addGeometry(Part.LineSegment(App.Vector(-37, 40, 0), App.Vector(-48, 40, 0)), False)
sketch7.addGeometry(Part.ArcOfCircle(Part.Circle(App.Vector(-48, 38, 0), App.Vector(0, 0, 1), 2), math.radians(90), math.radians(180)), False)
sketch7.addGeometry(Part.LineSegment(App.Vector(-50, 38, 0), App.Vector(-50, 34, 0)), False)
sketch7.addGeometry(Part.ArcOfCircle(Part.Circle(App.Vector(-48, 34, 0), App.Vector(0, 0, 1), 2), math.radians(-180), math.radians(-90)), False)
sketch7.addGeometry(Part.LineSegment(App.Vector(-48, 32, 0), App.Vector(-37, 32, 0)), False)
sketch7.addGeometry(Part.ArcOfCircle(Part.Circle(App.Vector(-37, 34, 0), App.Vector(0, 0, 1), 2), math.radians(-90), math.radians(0)), False)
sketch7.addGeometry(Part.LineSegment(App.Vector(-35, 34, 0), App.Vector(-35, 38, 0)), False)
sketch7.addGeometry(Part.ArcOfCircle(Part.Circle(App.Vector(-37, 38, 0), App.Vector(0, 0, 1), 2), math.radians(0), math.radians(90)), False)
sketch7.addConstraint(Sketcher.Constraint("Tangent", 0, 2, 1, 1))
sketch7.addConstraint(Sketcher.Constraint("Tangent", 1, 2, 2, 1))
sketch7.addConstraint(Sketcher.Constraint("Tangent", 2, 2, 3, 1))
sketch7.addConstraint(Sketcher.Constraint("Tangent", 3, 2, 4, 1))
sketch7.addConstraint(Sketcher.Constraint("Tangent", 4, 2, 5, 1))
sketch7.addConstraint(Sketcher.Constraint("Tangent", 5, 2, 6, 1))
sketch7.addConstraint(Sketcher.Constraint("Tangent", 6, 2, 7, 1))
sketch7.addConstraint(Sketcher.Constraint("Tangent", 7, 2, 0, 1))
sketch7.addConstraint(Sketcher.Constraint("Horizontal", 0))
sketch7.addConstraint(Sketcher.Constraint("Vertical", 2))
sketch7.addConstraint(Sketcher.Constraint("Horizontal", 4))
sketch7.addConstraint(Sketcher.Constraint("Vertical", 6))
sketch7.addConstraint(Sketcher.Constraint("Equal", 1, 3))
sketch7.addConstraint(Sketcher.Constraint("Equal", 3, 5))
sketch7.addConstraint(Sketcher.Constraint("Equal", 5, 7))
sketch7.addConstraint(Sketcher.Constraint("Radius", 1, 2.0))
sketch7.addConstraint(Sketcher.Constraint("DistanceX", 0, 2, 0, 1, 11.0))
sketch7.addConstraint(Sketcher.Constraint("DistanceY", 2, 2, 2, 1, 4.0))
sketch7.addConstraint(Sketcher.Constraint("DistanceX", 1, 3, -1, 1, 48.0))
sketch7.addConstraint(Sketcher.Constraint("DistanceY", -1, 1, 1, 3, 38.0))
pocket3 = doc.addObject("PartDesign::Pocket", "Pocket002")
body.addObject(pocket3)
pocket3.Profile = sketch7
pocket3.Type = "UpToFirst"

sketch8 = doc.addObject("Sketcher::SketchObject", "Sketch007")
body.addObject(sketch8)
sketch8.AttachmentSupport = (doc.YZ_Plane, [""])
sketch8.MapMode = "FlatFace"
sketch8.AttachmentOffset = App.Placement(App.Vector(0, 0, -64), App.Rotation())
sketch8.addGeometry(Part.LineSegment(App.Vector(29.521647, 4.5, 0), App.Vector(-29.521647, 4.5, 0)), False)
sketch8.addGeometry(Part.LineSegment(App.Vector(-29.521647, 4.5, 0), App.Vector(-29.521647, 9.5, 0)), False)
sketch8.addGeometry(Part.LineSegment(App.Vector(-29.521647, 9.5, 0), App.Vector(29.521647, 9.5, 0)), False)
sketch8.addGeometry(Part.LineSegment(App.Vector(29.521647, 9.5, 0), App.Vector(29.521647, 4.5, 0)), False)
sketch8.addConstraint(Sketcher.Constraint("Coincident", 0, 2, 1, 1))
sketch8.addConstraint(Sketcher.Constraint("Coincident", 1, 2, 2, 1))
sketch8.addConstraint(Sketcher.Constraint("Coincident", 2, 2, 3, 1))
sketch8.addConstraint(Sketcher.Constraint("Coincident", 3, 2, 0, 1))
sketch8.addConstraint(Sketcher.Constraint("Horizontal", 0))
sketch8.addConstraint(Sketcher.Constraint("Vertical", 1))
sketch8.addConstraint(Sketcher.Constraint("Horizontal", 2))
sketch8.addConstraint(Sketcher.Constraint("Vertical", 3))
sketch8.addConstraint(Sketcher.Constraint("DistanceY", 1, 1, 1, 2, 5.0))
sketch8.addConstraint(Sketcher.Constraint("DistanceY", -1, 1, 0, 2, 4.5))
sketch8.addConstraint(Sketcher.Constraint("DistanceX", 0, 2, 0, 1, 59.043294))
sketch8.addConstraint(Sketcher.Constraint("DistanceX", 0, 2, -1, 1, 29.521647))
pocket4 = doc.addObject("PartDesign::Pocket", "Pocket003")
body.addObject(pocket4)
pocket4.Profile = sketch8
pocket4.Type = "UpToFirst"
pocket4.Reversed = True

sketch9 = doc.addObject("Sketcher::SketchObject", "Sketch008")
body.addObject(sketch9)
sketch9.AttachmentSupport = (doc.XY_Plane, [""])
sketch9.MapMode = "FlatFace"
sketch9.addGeometry(Part.LineSegment(App.Vector(-50.5, 20.223092, 0), App.Vector(-50.5, 10.223092, 0)), False)
sketch9.addGeometry(Part.LineSegment(App.Vector(-50.5, 10.223092, 0), App.Vector(-47.5, 10.223092, 0)), False)
sketch9.addGeometry(Part.LineSegment(App.Vector(-47.5, 10.223092, 0), App.Vector(-47.5, 20.223092, 0)), False)
sketch9.addGeometry(Part.LineSegment(App.Vector(-47.5, 20.223092, 0), App.Vector(-50.5, 20.223092, 0)), False)
sketch9.addConstraint(Sketcher.Constraint("Coincident", 0, 2, 1, 1))
sketch9.addConstraint(Sketcher.Constraint("Coincident", 1, 2, 2, 1))
sketch9.addConstraint(Sketcher.Constraint("Coincident", 2, 2, 3, 1))
sketch9.addConstraint(Sketcher.Constraint("Coincident", 3, 2, 0, 1))
sketch9.addConstraint(Sketcher.Constraint("Vertical", 0))
sketch9.addConstraint(Sketcher.Constraint("Horizontal", 1))
sketch9.addConstraint(Sketcher.Constraint("Vertical", 2))
sketch9.addConstraint(Sketcher.Constraint("Horizontal", 3))
sketch9.addConstraint(Sketcher.Constraint("DistanceX", 1, 1, 1, 2, 3.0))
sketch9.addConstraint(Sketcher.Constraint("DistanceY", 0, 2, 0, 1, 10.0))
sketch9.addConstraint(Sketcher.Constraint("DistanceX", 0, 2, -1, 1, 50.5))
sketch9.addConstraint(Sketcher.Constraint("DistanceY", -1, 1, 0, 2, 10.223092))
pocket5 = doc.addObject("PartDesign::Pocket", "Pocket004")
body.addObject(pocket5)
pocket5.Profile = sketch9
pocket5.Type = "UpToFirst"
pocket5.Reversed = True

sketch10 = doc.addObject("Sketcher::SketchObject", "Sketch009")
body.addObject(sketch10)
sketch10.AttachmentSupport = (doc.XY_Plane, [""])
sketch10.MapMode = "FlatFace"
sketch10.addGeometry(Part.LineSegment(App.Vector(-37.5, 20.223092, 0), App.Vector(-37.5, 10.223092, 0)), False)
sketch10.addGeometry(Part.LineSegment(App.Vector(-37.5, 10.223092, 0), App.Vector(-34.5, 10.223092, 0)), False)
sketch10.addGeometry(Part.LineSegment(App.Vector(-34.5, 10.223092, 0), App.Vector(-34.5, 20.223092, 0)), False)
sketch10.addGeometry(Part.LineSegment(App.Vector(-34.5, 20.223092, 0), App.Vector(-37.5, 20.223092, 0)), False)
sketch10.addConstraint(Sketcher.Constraint("Coincident", 0, 2, 1, 1))
sketch10.addConstraint(Sketcher.Constraint("Coincident", 1, 2, 2, 1))
sketch10.addConstraint(Sketcher.Constraint("Coincident", 2, 2, 3, 1))
sketch10.addConstraint(Sketcher.Constraint("Coincident", 3, 2, 0, 1))
sketch10.addConstraint(Sketcher.Constraint("Vertical", 0))
sketch10.addConstraint(Sketcher.Constraint("Horizontal", 1))
sketch10.addConstraint(Sketcher.Constraint("Vertical", 2))
sketch10.addConstraint(Sketcher.Constraint("Horizontal", 3))
sketch10.addConstraint(Sketcher.Constraint("DistanceX", 1, 1, 1, 2, 3.0))
sketch10.addConstraint(Sketcher.Constraint("DistanceY", 0, 2, 0, 1, 10.0))
sketch10.addConstraint(Sketcher.Constraint("DistanceX", 0, 2, -1, 1, 37.5))
sketch10.addConstraint(Sketcher.Constraint("DistanceY", -1, 1, 0, 2, 10.223092))
pocket6 = doc.addObject("PartDesign::Pocket", "Pocket005")
body.addObject(pocket6)
pocket6.Profile = sketch10
pocket6.Type = "UpToFirst"
pocket6.Reversed = True

sketch11 = doc.addObject("Sketcher::SketchObject", "Sketch010")
body.addObject(sketch11)
sketch11.AttachmentSupport = (doc.XY_Plane, [""])
sketch11.MapMode = "FlatFace"
sketch11.addGeometry(Part.LineSegment(App.Vector(-50.5, -12.417191, 0), App.Vector(-50.5, -22.417191, 0)), False)
sketch11.addGeometry(Part.LineSegment(App.Vector(-50.5, -22.417191, 0), App.Vector(-47.5, -22.417191, 0)), False)
sketch11.addGeometry(Part.LineSegment(App.Vector(-47.5, -22.417191, 0), App.Vector(-47.5, -12.417191, 0)), False)
sketch11.addGeometry(Part.LineSegment(App.Vector(-47.5, -12.417191, 0), App.Vector(-50.5, -12.417191, 0)), False)
sketch11.addConstraint(Sketcher.Constraint("Coincident", 0, 2, 1, 1))
sketch11.addConstraint(Sketcher.Constraint("Coincident", 1, 2, 2, 1))
sketch11.addConstraint(Sketcher.Constraint("Coincident", 2, 2, 3, 1))
sketch11.addConstraint(Sketcher.Constraint("Coincident", 3, 2, 0, 1))
sketch11.addConstraint(Sketcher.Constraint("Vertical", 0))
sketch11.addConstraint(Sketcher.Constraint("Horizontal", 1))
sketch11.addConstraint(Sketcher.Constraint("Vertical", 2))
sketch11.addConstraint(Sketcher.Constraint("Horizontal", 3))
sketch11.addConstraint(Sketcher.Constraint("DistanceX", 1, 1, 1, 2, 3.0))
sketch11.addConstraint(Sketcher.Constraint("DistanceY", 0, 2, 0, 1, 10.0))
sketch11.addConstraint(Sketcher.Constraint("DistanceX", 0, 2, -1, 1, 50.5))
sketch11.addConstraint(Sketcher.Constraint("DistanceY", 0, 2, -1, 1, 22.417191))
pocket7 = doc.addObject("PartDesign::Pocket", "Pocket006")
body.addObject(pocket7)
pocket7.Profile = sketch11
pocket7.Type = "UpToFirst"
pocket7.Reversed = True

sketch12 = doc.addObject("Sketcher::SketchObject", "Sketch011")
body.addObject(sketch12)
sketch12.AttachmentSupport = (doc.XY_Plane, [""])
sketch12.MapMode = "FlatFace"
sketch12.addGeometry(Part.LineSegment(App.Vector(-37.5, -12.417191, 0), App.Vector(-37.5, -22.417191, 0)), False)
sketch12.addGeometry(Part.LineSegment(App.Vector(-37.5, -22.417191, 0), App.Vector(-34.5, -22.417191, 0)), False)
sketch12.addGeometry(Part.LineSegment(App.Vector(-34.5, -22.417191, 0), App.Vector(-34.5, -12.417191, 0)), False)
sketch12.addGeometry(Part.LineSegment(App.Vector(-34.5, -12.417191, 0), App.Vector(-37.5, -12.417191, 0)), False)
sketch12.addConstraint(Sketcher.Constraint("Coincident", 0, 2, 1, 1))
sketch12.addConstraint(Sketcher.Constraint("Coincident", 1, 2, 2, 1))
sketch12.addConstraint(Sketcher.Constraint("Coincident", 2, 2, 3, 1))
sketch12.addConstraint(Sketcher.Constraint("Coincident", 3, 2, 0, 1))
sketch12.addConstraint(Sketcher.Constraint("Vertical", 0))
sketch12.addConstraint(Sketcher.Constraint("Horizontal", 1))
sketch12.addConstraint(Sketcher.Constraint("Vertical", 2))
sketch12.addConstraint(Sketcher.Constraint("Horizontal", 3))
sketch12.addConstraint(Sketcher.Constraint("DistanceX", 1, 1, 1, 2, 3.0))
sketch12.addConstraint(Sketcher.Constraint("DistanceY", 0, 2, 0, 1, 10.0))
sketch12.addConstraint(Sketcher.Constraint("DistanceX", 0, 2, -1, 1, 37.5))
sketch12.addConstraint(Sketcher.Constraint("DistanceY", 0, 2, -1, 1, 22.417191))
pocket8 = doc.addObject("PartDesign::Pocket", "Pocket007")
body.addObject(pocket8)
pocket8.Profile = sketch12
pocket8.Type = "UpToFirst"
pocket8.Reversed = True

sketch13 = doc.addObject("Sketcher::SketchObject", "Sketch012")
body.addObject(sketch13)
sketch13.AttachmentSupport = (doc.XY_Plane, [""])
sketch13.MapMode = "FlatFace"
sketch13.addGeometry(Part.LineSegment(App.Vector(12.863828, 12, 0), App.Vector(12.863828, 9, 0)), False)
sketch13.addGeometry(Part.LineSegment(App.Vector(12.863828, 9, 0), App.Vector(27.021479, 9, 0)), False)
sketch13.addGeometry(Part.LineSegment(App.Vector(27.021479, 9, 0), App.Vector(27.021479, 12, 0)), False)
sketch13.addGeometry(Part.LineSegment(App.Vector(27.021479, 12, 0), App.Vector(12.863828, 12, 0)), False)
sketch13.addConstraint(Sketcher.Constraint("Coincident", 0, 2, 1, 1))
sketch13.addConstraint(Sketcher.Constraint("Coincident", 1, 2, 2, 1))
sketch13.addConstraint(Sketcher.Constraint("Coincident", 2, 2, 3, 1))
sketch13.addConstraint(Sketcher.Constraint("Coincident", 3, 2, 0, 1))
sketch13.addConstraint(Sketcher.Constraint("Vertical", 0))
sketch13.addConstraint(Sketcher.Constraint("Horizontal", 1))
sketch13.addConstraint(Sketcher.Constraint("Vertical", 2))
sketch13.addConstraint(Sketcher.Constraint("Horizontal", 3))
sketch13.addConstraint(Sketcher.Constraint("DistanceY", 0, 2, 0, 1, 3.0))
sketch13.addConstraint(Sketcher.Constraint("DistanceY", -1, 1, 0, 2, 9.0))
sketch13.addConstraint(Sketcher.Constraint("DistanceX", 1, 1, 1, 2, 14.157651))
sketch13.addConstraint(Sketcher.Constraint("DistanceX", -1, 1, 0, 2, 12.863828))
pocket9 = doc.addObject("PartDesign::Pocket", "Pocket008")
body.addObject(pocket9)
pocket9.Profile = sketch13
pocket9.Type = "UpToFirst"
pocket9.Reversed = True

sketch14 = doc.addObject("Sketcher::SketchObject", "Sketch013")
body.addObject(sketch14)
sketch14.AttachmentSupport = (doc.XY_Plane, [""])
sketch14.MapMode = "FlatFace"
sketch14.addGeometry(Part.LineSegment(App.Vector(12.863828, -9, 0), App.Vector(12.863828, -12.146145, 0)), False)
sketch14.addGeometry(Part.LineSegment(App.Vector(12.863828, -12.146145, 0), App.Vector(27.021479, -12.146145, 0)), False)
sketch14.addGeometry(Part.LineSegment(App.Vector(27.021479, -12.146145, 0), App.Vector(27.021479, -9, 0)), False)
sketch14.addGeometry(Part.LineSegment(App.Vector(27.021479, -9, 0), App.Vector(12.863828, -9, 0)), False)
sketch14.addConstraint(Sketcher.Constraint("Coincident", 0, 2, 1, 1))
sketch14.addConstraint(Sketcher.Constraint("Coincident", 1, 2, 2, 1))
sketch14.addConstraint(Sketcher.Constraint("Coincident", 2, 2, 3, 1))
sketch14.addConstraint(Sketcher.Constraint("Coincident", 3, 2, 0, 1))
sketch14.addConstraint(Sketcher.Constraint("Vertical", 0))
sketch14.addConstraint(Sketcher.Constraint("Horizontal", 1))
sketch14.addConstraint(Sketcher.Constraint("Vertical", 2))
sketch14.addConstraint(Sketcher.Constraint("Horizontal", 3))
sketch14.addConstraint(Sketcher.Constraint("DistanceY", 2, 2, -1, 1, 9.0))
sketch14.addConstraint(Sketcher.Constraint("DistanceX", 1, 1, 1, 2, 14.157651))
sketch14.addConstraint(Sketcher.Constraint("DistanceY", 0, 2, 0, 1, 3.146145))
sketch14.addConstraint(Sketcher.Constraint("DistanceX", -1, 1, 0, 2, 12.863828))
pocket10 = doc.addObject("PartDesign::Pocket", "Pocket009")
body.addObject(pocket10)
pocket10.Profile = sketch14
pocket10.Type = "UpToFirst"
pocket10.Reversed = True

sketch15 = doc.addObject("Sketcher::SketchObject", "Sketch014")
body.addObject(sketch15)
sketch15.AttachmentSupport = (doc.XZ_Plane, [""])
sketch15.MapMode = "FlatFace"
sketch15.AttachmentOffset = App.Placement(App.Vector(0, 0, -34.521647), App.Rotation())
sketch15.addGeometry(Part.LineSegment(App.Vector(-50, 4.5, 0), App.Vector(-50, 7.5, 0)), False)
sketch15.addGeometry(Part.LineSegment(App.Vector(-50, 7.5, 0), App.Vector(-35, 7.5, 0)), False)
sketch15.addGeometry(Part.LineSegment(App.Vector(-35, 7.5, 0), App.Vector(-35, 4.5, 0)), False)
sketch15.addGeometry(Part.LineSegment(App.Vector(-35, 4.5, 0), App.Vector(-50, 4.5, 0)), False)
sketch15.addConstraint(Sketcher.Constraint("Coincident", 0, 2, 1, 1))
sketch15.addConstraint(Sketcher.Constraint("Coincident", 1, 2, 2, 1))
sketch15.addConstraint(Sketcher.Constraint("Coincident", 2, 2, 3, 1))
sketch15.addConstraint(Sketcher.Constraint("Coincident", 3, 2, 0, 1))
sketch15.addConstraint(Sketcher.Constraint("Vertical", 0))
sketch15.addConstraint(Sketcher.Constraint("Horizontal", 1))
sketch15.addConstraint(Sketcher.Constraint("Vertical", 2))
sketch15.addConstraint(Sketcher.Constraint("Horizontal", 3))
sketch15.addConstraint(Sketcher.Constraint("DistanceX", 1, 1, 1, 2, 15.0))
sketch15.addConstraint(Sketcher.Constraint("DistanceY", 0, 1, 0, 2, 3.0))
sketch15.addConstraint(Sketcher.Constraint("DistanceX", 0, 2, -1, 1, 50.0))
sketch15.addConstraint(Sketcher.Constraint("DistanceY", -1, 1, 0, 2, 7.5))
pocket11 = doc.addObject("PartDesign::Pocket", "Pocket010")
body.addObject(pocket11)
pocket11.Profile = sketch15
pocket11.Type = "UpToFirst"
pocket11.Reversed = True

doc.recompute()
